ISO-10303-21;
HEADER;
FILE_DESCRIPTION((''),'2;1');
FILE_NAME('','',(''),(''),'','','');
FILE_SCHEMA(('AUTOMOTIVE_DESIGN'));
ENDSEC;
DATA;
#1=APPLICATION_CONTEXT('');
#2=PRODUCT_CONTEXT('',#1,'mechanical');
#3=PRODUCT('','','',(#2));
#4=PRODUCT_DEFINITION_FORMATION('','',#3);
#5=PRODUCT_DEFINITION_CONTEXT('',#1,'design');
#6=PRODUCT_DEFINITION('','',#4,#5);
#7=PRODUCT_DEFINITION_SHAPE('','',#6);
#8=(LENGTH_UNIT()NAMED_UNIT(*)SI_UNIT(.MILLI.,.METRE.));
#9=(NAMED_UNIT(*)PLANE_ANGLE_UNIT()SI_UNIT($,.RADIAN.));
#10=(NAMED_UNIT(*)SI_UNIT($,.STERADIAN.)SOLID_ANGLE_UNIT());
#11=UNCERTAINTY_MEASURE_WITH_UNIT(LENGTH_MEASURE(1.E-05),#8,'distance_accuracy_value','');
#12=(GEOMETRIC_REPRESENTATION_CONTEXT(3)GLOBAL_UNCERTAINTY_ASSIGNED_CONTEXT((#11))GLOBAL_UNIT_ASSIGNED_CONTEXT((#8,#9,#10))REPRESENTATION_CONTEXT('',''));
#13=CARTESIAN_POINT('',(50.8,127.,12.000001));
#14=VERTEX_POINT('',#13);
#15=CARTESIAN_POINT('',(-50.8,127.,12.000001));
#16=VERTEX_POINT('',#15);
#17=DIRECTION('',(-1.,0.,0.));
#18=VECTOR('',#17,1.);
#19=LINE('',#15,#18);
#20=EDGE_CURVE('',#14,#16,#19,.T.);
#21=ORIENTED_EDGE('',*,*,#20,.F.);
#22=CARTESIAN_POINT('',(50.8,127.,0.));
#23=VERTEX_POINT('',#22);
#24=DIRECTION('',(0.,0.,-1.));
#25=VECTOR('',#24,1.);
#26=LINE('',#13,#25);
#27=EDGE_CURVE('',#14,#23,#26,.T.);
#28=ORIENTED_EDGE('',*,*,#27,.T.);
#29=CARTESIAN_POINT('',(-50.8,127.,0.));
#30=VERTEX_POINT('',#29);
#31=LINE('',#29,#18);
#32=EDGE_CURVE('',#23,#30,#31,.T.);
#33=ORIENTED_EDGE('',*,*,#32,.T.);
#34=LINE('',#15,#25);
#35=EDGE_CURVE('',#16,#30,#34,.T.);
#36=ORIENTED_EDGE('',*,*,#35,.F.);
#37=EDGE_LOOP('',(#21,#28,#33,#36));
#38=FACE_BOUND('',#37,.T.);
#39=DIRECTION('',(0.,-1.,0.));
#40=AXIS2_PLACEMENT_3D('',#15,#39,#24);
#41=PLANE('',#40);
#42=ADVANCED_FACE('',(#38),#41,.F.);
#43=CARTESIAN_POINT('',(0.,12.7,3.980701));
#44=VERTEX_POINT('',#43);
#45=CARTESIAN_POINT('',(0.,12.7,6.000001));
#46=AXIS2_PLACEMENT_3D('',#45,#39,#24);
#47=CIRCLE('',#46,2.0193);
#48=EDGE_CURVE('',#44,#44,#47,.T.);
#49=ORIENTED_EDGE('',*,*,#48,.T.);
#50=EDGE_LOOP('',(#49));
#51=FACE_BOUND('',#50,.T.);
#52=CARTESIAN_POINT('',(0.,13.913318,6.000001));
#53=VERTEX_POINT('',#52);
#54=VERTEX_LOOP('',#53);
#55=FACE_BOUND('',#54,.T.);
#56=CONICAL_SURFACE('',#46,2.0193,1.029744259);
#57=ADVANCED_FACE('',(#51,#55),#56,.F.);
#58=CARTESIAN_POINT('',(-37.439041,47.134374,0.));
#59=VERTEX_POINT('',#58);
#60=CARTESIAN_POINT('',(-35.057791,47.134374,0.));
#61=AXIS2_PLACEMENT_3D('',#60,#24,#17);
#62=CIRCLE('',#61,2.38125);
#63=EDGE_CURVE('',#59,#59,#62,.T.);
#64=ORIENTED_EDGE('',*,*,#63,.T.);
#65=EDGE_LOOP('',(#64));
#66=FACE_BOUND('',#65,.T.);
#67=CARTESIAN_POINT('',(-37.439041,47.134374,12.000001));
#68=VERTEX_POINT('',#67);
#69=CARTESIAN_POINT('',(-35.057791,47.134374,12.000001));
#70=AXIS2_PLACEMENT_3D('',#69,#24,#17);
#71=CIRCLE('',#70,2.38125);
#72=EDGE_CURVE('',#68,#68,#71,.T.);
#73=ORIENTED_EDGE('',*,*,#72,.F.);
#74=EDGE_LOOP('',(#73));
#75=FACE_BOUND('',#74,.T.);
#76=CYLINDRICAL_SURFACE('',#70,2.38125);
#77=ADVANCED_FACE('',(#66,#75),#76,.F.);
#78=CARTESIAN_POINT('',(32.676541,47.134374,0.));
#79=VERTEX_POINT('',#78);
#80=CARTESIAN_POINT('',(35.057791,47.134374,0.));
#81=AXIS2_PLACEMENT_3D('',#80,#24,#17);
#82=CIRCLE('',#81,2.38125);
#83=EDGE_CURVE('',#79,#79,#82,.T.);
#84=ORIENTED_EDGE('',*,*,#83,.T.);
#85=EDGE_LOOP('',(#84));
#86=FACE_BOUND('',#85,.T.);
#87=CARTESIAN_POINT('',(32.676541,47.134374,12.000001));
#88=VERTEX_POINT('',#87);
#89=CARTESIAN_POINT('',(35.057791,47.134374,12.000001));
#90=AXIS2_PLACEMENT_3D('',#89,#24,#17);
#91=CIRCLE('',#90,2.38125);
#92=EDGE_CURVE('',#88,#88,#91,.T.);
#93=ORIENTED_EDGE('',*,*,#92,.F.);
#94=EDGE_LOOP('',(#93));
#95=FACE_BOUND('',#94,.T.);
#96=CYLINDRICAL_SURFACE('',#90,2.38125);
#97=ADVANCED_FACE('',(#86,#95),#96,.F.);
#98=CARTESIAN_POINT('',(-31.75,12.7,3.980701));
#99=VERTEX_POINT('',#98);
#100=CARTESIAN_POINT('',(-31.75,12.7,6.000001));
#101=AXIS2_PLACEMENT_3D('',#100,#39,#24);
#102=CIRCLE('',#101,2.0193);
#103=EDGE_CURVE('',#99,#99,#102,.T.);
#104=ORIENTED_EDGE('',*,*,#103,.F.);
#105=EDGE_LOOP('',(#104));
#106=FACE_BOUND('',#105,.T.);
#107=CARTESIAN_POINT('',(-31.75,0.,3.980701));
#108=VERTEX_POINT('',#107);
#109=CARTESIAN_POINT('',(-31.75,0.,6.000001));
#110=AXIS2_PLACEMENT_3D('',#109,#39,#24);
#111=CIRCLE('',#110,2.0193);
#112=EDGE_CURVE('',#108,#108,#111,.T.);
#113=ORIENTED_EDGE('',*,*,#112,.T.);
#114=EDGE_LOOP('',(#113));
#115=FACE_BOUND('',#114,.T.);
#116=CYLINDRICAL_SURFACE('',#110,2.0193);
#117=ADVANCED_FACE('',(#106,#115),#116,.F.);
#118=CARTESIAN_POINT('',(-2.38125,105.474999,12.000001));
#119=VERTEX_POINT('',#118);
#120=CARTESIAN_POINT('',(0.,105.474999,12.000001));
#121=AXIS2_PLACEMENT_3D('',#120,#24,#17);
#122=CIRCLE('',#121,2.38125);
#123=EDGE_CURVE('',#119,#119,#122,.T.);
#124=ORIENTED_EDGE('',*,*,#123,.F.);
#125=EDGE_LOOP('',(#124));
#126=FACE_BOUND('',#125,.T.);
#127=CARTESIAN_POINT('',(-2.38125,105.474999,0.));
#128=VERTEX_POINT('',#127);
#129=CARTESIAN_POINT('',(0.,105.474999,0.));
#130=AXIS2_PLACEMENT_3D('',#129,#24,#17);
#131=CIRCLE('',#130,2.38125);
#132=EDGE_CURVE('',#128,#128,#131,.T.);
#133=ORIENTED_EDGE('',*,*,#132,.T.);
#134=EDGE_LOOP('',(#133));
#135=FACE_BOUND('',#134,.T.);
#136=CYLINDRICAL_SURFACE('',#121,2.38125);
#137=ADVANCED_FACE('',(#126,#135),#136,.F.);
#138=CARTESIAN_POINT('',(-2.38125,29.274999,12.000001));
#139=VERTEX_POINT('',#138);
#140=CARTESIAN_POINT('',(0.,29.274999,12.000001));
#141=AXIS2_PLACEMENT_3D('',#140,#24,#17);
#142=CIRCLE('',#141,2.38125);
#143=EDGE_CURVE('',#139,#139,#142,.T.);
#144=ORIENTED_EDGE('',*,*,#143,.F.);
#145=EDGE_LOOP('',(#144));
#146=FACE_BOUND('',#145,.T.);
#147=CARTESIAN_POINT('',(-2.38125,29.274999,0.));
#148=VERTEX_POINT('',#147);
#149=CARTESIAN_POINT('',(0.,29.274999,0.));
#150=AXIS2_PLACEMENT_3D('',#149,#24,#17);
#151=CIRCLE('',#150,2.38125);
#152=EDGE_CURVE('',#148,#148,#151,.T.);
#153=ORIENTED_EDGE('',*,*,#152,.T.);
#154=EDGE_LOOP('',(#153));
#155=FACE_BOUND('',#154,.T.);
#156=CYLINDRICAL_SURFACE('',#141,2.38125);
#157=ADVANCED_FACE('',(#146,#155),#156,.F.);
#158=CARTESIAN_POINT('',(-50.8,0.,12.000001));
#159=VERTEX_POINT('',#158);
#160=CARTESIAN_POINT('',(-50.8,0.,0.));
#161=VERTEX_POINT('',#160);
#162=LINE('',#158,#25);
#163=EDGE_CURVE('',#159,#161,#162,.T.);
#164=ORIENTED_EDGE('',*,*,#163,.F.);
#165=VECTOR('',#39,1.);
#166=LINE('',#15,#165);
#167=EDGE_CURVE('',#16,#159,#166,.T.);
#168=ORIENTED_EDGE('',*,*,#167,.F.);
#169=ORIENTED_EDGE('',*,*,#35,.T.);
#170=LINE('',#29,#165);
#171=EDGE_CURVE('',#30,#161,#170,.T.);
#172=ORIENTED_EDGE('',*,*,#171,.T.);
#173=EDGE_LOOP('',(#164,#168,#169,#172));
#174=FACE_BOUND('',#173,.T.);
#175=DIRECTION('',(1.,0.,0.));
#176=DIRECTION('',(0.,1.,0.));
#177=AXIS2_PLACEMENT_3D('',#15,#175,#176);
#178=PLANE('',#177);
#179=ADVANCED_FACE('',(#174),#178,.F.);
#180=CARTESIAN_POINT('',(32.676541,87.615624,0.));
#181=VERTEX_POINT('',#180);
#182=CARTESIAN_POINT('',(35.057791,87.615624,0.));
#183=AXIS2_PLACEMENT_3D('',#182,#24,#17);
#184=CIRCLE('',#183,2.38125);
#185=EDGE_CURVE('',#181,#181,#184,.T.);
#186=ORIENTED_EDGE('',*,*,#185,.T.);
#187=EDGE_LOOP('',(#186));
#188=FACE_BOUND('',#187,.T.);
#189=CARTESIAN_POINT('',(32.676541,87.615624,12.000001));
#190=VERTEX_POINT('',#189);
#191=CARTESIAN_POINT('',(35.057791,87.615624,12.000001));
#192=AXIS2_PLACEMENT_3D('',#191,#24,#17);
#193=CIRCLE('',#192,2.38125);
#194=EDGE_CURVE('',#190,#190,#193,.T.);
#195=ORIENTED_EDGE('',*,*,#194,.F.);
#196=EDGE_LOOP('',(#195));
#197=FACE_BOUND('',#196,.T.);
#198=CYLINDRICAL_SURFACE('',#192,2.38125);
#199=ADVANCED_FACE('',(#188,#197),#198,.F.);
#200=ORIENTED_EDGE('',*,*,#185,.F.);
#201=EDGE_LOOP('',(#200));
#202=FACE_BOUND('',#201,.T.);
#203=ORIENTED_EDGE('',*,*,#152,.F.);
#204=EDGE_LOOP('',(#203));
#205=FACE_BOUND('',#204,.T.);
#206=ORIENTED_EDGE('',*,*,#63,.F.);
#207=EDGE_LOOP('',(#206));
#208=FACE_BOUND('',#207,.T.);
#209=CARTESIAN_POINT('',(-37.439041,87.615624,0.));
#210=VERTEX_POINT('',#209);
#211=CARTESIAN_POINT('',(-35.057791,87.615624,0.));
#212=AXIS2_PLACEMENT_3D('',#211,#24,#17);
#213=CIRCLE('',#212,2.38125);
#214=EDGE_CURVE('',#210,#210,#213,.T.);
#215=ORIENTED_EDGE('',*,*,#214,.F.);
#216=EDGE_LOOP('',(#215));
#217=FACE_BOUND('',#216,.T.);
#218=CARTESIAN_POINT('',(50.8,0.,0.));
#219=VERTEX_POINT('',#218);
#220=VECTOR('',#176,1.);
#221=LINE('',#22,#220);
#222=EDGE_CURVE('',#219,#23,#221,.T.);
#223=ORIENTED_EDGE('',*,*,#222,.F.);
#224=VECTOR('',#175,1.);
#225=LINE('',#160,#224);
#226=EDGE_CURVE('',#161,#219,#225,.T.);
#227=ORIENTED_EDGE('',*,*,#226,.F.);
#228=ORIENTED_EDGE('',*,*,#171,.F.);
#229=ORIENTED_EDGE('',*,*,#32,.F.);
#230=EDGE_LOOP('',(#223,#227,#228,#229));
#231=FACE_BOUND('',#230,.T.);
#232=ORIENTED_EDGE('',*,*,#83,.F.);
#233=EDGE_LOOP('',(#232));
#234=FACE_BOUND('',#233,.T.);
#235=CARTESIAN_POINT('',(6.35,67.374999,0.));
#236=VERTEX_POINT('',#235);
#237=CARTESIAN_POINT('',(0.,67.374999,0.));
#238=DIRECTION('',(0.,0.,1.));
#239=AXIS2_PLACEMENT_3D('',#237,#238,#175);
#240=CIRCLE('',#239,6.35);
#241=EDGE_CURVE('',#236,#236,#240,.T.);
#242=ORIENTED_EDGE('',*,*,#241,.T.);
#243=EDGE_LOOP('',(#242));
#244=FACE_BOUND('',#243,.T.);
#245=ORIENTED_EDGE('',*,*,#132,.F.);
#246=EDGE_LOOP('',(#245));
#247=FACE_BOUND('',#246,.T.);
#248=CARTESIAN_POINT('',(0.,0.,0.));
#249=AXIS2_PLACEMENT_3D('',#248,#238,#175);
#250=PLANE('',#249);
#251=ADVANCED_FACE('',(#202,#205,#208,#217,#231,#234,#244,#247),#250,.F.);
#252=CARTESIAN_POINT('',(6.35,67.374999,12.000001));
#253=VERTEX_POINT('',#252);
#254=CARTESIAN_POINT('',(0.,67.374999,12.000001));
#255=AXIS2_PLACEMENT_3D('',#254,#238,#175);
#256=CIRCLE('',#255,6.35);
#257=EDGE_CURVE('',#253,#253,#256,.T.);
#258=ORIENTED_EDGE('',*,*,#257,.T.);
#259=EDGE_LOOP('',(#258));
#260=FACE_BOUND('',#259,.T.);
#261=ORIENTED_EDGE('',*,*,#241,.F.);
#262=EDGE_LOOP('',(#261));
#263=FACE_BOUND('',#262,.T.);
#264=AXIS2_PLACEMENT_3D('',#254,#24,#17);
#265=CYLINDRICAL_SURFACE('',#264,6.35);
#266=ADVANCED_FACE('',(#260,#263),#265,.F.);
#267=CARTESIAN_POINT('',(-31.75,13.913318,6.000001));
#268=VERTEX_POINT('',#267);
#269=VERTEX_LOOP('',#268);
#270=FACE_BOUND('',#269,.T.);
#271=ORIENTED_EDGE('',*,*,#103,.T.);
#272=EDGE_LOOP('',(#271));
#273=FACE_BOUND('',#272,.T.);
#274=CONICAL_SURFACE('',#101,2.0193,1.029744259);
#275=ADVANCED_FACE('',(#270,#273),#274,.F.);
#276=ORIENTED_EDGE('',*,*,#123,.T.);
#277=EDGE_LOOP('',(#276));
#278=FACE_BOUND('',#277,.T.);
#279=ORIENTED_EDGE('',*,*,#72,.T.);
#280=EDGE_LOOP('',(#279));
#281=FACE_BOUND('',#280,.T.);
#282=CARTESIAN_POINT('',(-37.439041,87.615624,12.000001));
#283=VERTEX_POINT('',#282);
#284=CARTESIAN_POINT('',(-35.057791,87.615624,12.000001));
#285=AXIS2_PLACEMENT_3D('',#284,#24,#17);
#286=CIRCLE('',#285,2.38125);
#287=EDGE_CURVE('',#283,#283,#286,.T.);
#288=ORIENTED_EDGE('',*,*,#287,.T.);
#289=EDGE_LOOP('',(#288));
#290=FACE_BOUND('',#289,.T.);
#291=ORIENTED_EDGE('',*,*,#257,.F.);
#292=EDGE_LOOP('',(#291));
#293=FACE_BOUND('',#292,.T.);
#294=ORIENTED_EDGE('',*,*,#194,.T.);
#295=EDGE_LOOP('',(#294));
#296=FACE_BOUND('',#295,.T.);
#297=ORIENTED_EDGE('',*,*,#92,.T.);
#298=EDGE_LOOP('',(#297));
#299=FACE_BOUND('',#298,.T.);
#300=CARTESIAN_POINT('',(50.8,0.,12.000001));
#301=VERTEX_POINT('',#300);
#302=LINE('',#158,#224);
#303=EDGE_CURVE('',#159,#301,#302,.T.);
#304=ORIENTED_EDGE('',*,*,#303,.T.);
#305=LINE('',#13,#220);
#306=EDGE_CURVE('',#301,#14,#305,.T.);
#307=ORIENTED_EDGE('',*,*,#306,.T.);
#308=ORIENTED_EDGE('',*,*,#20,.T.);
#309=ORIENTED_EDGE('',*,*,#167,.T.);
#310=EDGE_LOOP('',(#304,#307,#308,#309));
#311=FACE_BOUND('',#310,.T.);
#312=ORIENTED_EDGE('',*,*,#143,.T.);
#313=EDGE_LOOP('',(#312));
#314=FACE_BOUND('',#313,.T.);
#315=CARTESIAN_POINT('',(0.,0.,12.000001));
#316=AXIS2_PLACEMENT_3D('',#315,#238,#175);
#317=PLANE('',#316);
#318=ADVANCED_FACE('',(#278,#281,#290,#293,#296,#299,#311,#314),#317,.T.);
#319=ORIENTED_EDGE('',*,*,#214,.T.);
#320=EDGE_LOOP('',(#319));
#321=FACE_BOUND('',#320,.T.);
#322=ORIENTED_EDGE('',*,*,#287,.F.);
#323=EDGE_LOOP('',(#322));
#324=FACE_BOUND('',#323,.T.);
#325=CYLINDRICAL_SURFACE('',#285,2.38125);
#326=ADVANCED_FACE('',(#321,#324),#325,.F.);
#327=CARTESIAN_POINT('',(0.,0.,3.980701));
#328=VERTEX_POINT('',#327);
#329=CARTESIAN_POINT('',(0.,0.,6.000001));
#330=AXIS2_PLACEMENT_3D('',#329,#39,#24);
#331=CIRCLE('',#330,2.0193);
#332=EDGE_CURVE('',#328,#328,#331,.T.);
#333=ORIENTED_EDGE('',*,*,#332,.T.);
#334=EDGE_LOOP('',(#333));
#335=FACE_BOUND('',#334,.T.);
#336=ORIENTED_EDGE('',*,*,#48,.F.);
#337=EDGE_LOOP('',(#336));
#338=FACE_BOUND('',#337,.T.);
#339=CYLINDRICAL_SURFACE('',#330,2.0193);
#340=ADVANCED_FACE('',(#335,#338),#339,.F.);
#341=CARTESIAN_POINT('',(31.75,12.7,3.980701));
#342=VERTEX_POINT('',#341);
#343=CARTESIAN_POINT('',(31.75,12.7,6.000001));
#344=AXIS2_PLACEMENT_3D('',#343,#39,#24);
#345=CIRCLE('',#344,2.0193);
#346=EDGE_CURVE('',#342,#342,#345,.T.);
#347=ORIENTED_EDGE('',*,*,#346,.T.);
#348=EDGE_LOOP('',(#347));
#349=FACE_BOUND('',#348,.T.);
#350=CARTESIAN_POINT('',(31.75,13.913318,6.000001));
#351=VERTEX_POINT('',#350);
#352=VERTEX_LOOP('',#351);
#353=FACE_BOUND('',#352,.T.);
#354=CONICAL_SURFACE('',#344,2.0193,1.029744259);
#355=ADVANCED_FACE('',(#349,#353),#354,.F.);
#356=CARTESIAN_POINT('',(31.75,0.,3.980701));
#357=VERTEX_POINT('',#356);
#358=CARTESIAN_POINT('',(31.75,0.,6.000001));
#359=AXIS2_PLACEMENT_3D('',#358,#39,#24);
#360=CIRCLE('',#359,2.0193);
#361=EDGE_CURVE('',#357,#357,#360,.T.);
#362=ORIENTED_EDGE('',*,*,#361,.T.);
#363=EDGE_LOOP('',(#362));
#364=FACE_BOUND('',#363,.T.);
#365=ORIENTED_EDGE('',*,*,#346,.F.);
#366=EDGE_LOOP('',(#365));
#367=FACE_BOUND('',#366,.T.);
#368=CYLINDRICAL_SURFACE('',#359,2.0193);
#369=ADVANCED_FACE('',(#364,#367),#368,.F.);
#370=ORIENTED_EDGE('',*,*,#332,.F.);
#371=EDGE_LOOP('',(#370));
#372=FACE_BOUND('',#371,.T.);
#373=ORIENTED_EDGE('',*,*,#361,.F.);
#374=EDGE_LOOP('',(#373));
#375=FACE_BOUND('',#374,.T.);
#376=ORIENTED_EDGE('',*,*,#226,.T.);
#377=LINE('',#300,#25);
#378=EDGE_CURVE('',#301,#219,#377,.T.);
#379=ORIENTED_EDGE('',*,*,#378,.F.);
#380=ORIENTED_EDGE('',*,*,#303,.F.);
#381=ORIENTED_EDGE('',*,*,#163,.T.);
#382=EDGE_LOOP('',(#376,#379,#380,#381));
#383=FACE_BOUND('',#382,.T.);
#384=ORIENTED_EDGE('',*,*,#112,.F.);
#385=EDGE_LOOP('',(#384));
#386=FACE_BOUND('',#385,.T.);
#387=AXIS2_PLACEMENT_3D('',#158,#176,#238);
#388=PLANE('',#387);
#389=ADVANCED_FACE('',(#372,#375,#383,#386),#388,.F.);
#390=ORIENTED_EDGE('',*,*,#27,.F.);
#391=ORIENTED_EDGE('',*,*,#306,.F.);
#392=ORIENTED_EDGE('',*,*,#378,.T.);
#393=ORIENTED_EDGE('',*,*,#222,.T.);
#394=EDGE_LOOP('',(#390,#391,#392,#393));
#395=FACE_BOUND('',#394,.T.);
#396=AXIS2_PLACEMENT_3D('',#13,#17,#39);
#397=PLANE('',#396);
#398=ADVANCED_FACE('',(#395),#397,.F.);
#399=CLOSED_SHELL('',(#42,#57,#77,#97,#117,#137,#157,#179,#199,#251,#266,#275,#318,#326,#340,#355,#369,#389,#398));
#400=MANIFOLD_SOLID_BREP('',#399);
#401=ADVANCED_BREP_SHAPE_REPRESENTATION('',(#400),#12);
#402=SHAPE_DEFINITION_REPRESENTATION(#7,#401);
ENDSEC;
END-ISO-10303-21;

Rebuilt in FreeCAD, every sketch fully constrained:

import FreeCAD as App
import Part
import Sketcher

V = App.Vector
Q = App.Units.Quantity


def add_polygon(sketch, points):
    """Adds a closed chain of lines whose ends are joined by coincident constraints."""
    first, n = sketch.GeometryCount, len(points)
    for a, b in zip(points, points[1:] + points[:1]):
        sketch.addGeometry(Part.LineSegment(App.Vector(*a, 0), App.Vector(*b, 0)), False)
    for i in range(n):
        sketch.addConstraint(Sketcher.Constraint("Coincident", first + i, 2, first + (i + 1) % n, 1))

doc = App.newDocument("Part")
body = doc.addObject("PartDesign::Body", "Body")

# Sketch on XY plane
sketch1 = doc.addObject("Sketcher::SketchObject", "Sketch")
body.addObject(sketch1)
sketch1.AttachmentSupport = (doc.XY_Plane, [""])
sketch1.MapMode = "FlatFace"
add_polygon(sketch1, [(-51, 127), (-51, 0), (51, 0), (51, 127)])  # lines 0-3
sketch1.addGeometry(Part.Circle(V(0, 67, 0), V(0, 0, 1), 6), False)  # 4
sketch1.addConstraint(Sketcher.Constraint("Vertical", 0))
sketch1.addConstraint(Sketcher.Constraint("Horizontal", 1))
sketch1.addConstraint(Sketcher.Constraint("Vertical", 2))
sketch1.addConstraint(Sketcher.Constraint("Horizontal", 3))
sketch1.addConstraint(Sketcher.Constraint("Symmetric", 0, 2, 1, 2, -1, 1))
sketch1.addConstraint(Sketcher.Constraint("PointOnObject", 4, 3, -2))
sketch1.addConstraint(Sketcher.Constraint("Diameter", 4, Q("0.5 in")))
sketch1.addConstraint(Sketcher.Constraint("DistanceX", 1, 1, 1, 2, Q("4 in")))
sketch1.addConstraint(Sketcher.Constraint("DistanceY", 0, 2, 0, 1, Q("5 in")))
sketch1.addConstraint(Sketcher.Constraint("DistanceY", -1, 1, 4, 3, Q("67.374999 mm")))
pad1 = doc.addObject("PartDesign::Pad", "Pad")
body.addObject(pad1)
pad1.Profile = sketch1
pad1.Length = 12.000001

# Sketch on XY plane
sketch2 = doc.addObject("Sketcher::SketchObject", "Sketch001")
body.addObject(sketch2)
sketch2.AttachmentSupport = (doc.XY_Plane, [""])
sketch2.MapMode = "FlatFace"
sketch2.addGeometry(Part.Circle(V(0, 105.5, 0), V(0, 0, 1), 2.4), False)
sketch2.addGeometry(Part.Circle(V(0, 29.3, 0), V(0, 0, 1), 2.4), False)
sketch2.addGeometry(Part.Circle(V(35.1, 87.6, 0), V(0, 0, 1), 2.4), False)
sketch2.addGeometry(Part.Circle(V(35.1, 47.1, 0), V(0, 0, 1), 2.4), False)
sketch2.addGeometry(Part.Circle(V(-35.1, 47.1, 0), V(0, 0, 1), 2.4), False)
sketch2.addGeometry(Part.Circle(V(-35.1, 87.6, 0), V(0, 0, 1), 2.4), False)
sketch2.addConstraint(Sketcher.Constraint("Equal", 0, 1))
sketch2.addConstraint(Sketcher.Constraint("Equal", 1, 2))
sketch2.addConstraint(Sketcher.Constraint("Equal", 2, 3))
sketch2.addConstraint(Sketcher.Constraint("Equal", 3, 4))
sketch2.addConstraint(Sketcher.Constraint("Equal", 4, 5))
sketch2.addConstraint(Sketcher.Constraint("Symmetric", 3, 3, 4, 3, -2))
sketch2.addConstraint(Sketcher.Constraint("Symmetric", 2, 3, 5, 3, -2))
sketch2.addConstraint(Sketcher.Constraint("PointOnObject", 0, 3, -2))
sketch2.addConstraint(Sketcher.Constraint("PointOnObject", 1, 3, -2))
sketch2.addConstraint(Sketcher.Constraint("Vertical", 2, 3, 3, 3))
sketch2.addConstraint(Sketcher.Constraint("Diameter", 0, Q("0.1875 in")))
sketch2.addConstraint(Sketcher.Constraint("DistanceY", 1, 3, 0, 3, Q("3 in")))
sketch2.addConstraint(Sketcher.Constraint("DistanceY", 2, 3, 0, 3, Q("0.703125 in")))
sketch2.addConstraint(Sketcher.Constraint("DistanceY", 1, 3, 3, 3, Q("0.703125 in")))
sketch2.addConstraint(Sketcher.Constraint("DistanceY", -1, 1, 0, 3, Q("105.474999 mm")))
sketch2.addConstraint(Sketcher.Constraint("DistanceX", -1, 1, 2, 3, Q("35.057791 mm")))
pocket1 = doc.addObject("PartDesign::Pocket", "Pocket")
body.addObject(pocket1)
pocket1.Profile = sketch2
pocket1.Type = "ThroughAll"
pocket1.Reversed = True

# Sketch on XZ plane
sketch3 = doc.addObject("Sketcher::SketchObject", "Sketch002")
body.addObject(sketch3)
sketch3.AttachmentSupport = (doc.XZ_Plane, [""])
sketch3.MapMode = "FlatFace"
sketch3.addGeometry(Part.Circle(V(31.8, 6, 0), V(0, 0, 1), 1.3), False)
sketch3.addGeometry(Part.Circle(V(0, 6, 0), V(0, 0, 1), 1.3), False)
sketch3.addGeometry(Part.Circle(V(-31.8, 6, 0), V(0, 0, 1), 1.3), False)
sketch3.addConstraint(Sketcher.Constraint("Equal", 0, 1))
sketch3.addConstraint(Sketcher.Constraint("Equal", 1, 2))
sketch3.addConstraint(Sketcher.Constraint("Symmetric", 0, 3, 2, 3, -2))
sketch3.addConstraint(Sketcher.Constraint("PointOnObject", 1, 3, -2))
sketch3.addConstraint(Sketcher.Constraint("Horizontal", 0, 3, 1, 3))
sketch3.addConstraint(Sketcher.Constraint("Diameter", 0, Q("0.1 in")))
sketch3.addConstraint(Sketcher.Constraint("DistanceX", 2, 3, 0, 3, Q("2.5 in")))
sketch3.addConstraint(Sketcher.Constraint("DistanceY", -1, 1, 0, 3, Q("6.000001 mm")))
pocket2 = doc.addObject("PartDesign::Pocket", "Pocket001")
body.addObject(pocket2)
pocket2.Profile = sketch3
pocket2.Length = Q("0.5 in")

# Sketch on XZ plane
sketch4 = doc.addObject("Sketcher::SketchObject", "Sketch003")
body.addObject(sketch4)
sketch4.AttachmentSupport = (doc.XZ_Plane, [""])
sketch4.MapMode = "FlatFace"
sketch4.addGeometry(Part.Circle(V(31.8, 6, 0), V(0, 0, 1), 2), False)
sketch4.addGeometry(Part.Circle(V(0, 6, 0), V(0, 0, 1), 2), False)
sketch4.addGeometry(Part.Circle(V(-31.8, 6, 0), V(0, 0, 1), 2), False)
sketch4.addConstraint(Sketcher.Constraint("Equal", 0, 1))
sketch4.addConstraint(Sketcher.Constraint("Equal", 1, 2))
sketch4.addConstraint(Sketcher.Constraint("Symmetric", 0, 3, 2, 3, -2))
sketch4.addConstraint(Sketcher.Constraint("PointOnObject", 1, 3, -2))
sketch4.addConstraint(Sketcher.Constraint("Horizontal", 0, 3, 1, 3))
sketch4.addConstraint(Sketcher.Constraint("Diameter", 0, Q("0.159 in")))
sketch4.addConstraint(Sketcher.Constraint("DistanceX", 2, 3, 0, 3, Q("2.5 in")))
sketch4.addConstraint(Sketcher.Constraint("DistanceY", -1, 1, 0, 3, Q("6.000001 mm")))
doc.recompute()
hole = doc.addObject("PartDesign::Hole", "Hole")
body.addObject(hole)
hole.Profile = sketch4
hole.ThreadType = "None"
hole.Diameter = Q("0.159 in")
hole.DepthType = "Dimension"
hole.Depth = Q("0.5 in")
hole.DrillPoint = "Angled"
hole.DrillPointAngle = 118

doc.recompute()
